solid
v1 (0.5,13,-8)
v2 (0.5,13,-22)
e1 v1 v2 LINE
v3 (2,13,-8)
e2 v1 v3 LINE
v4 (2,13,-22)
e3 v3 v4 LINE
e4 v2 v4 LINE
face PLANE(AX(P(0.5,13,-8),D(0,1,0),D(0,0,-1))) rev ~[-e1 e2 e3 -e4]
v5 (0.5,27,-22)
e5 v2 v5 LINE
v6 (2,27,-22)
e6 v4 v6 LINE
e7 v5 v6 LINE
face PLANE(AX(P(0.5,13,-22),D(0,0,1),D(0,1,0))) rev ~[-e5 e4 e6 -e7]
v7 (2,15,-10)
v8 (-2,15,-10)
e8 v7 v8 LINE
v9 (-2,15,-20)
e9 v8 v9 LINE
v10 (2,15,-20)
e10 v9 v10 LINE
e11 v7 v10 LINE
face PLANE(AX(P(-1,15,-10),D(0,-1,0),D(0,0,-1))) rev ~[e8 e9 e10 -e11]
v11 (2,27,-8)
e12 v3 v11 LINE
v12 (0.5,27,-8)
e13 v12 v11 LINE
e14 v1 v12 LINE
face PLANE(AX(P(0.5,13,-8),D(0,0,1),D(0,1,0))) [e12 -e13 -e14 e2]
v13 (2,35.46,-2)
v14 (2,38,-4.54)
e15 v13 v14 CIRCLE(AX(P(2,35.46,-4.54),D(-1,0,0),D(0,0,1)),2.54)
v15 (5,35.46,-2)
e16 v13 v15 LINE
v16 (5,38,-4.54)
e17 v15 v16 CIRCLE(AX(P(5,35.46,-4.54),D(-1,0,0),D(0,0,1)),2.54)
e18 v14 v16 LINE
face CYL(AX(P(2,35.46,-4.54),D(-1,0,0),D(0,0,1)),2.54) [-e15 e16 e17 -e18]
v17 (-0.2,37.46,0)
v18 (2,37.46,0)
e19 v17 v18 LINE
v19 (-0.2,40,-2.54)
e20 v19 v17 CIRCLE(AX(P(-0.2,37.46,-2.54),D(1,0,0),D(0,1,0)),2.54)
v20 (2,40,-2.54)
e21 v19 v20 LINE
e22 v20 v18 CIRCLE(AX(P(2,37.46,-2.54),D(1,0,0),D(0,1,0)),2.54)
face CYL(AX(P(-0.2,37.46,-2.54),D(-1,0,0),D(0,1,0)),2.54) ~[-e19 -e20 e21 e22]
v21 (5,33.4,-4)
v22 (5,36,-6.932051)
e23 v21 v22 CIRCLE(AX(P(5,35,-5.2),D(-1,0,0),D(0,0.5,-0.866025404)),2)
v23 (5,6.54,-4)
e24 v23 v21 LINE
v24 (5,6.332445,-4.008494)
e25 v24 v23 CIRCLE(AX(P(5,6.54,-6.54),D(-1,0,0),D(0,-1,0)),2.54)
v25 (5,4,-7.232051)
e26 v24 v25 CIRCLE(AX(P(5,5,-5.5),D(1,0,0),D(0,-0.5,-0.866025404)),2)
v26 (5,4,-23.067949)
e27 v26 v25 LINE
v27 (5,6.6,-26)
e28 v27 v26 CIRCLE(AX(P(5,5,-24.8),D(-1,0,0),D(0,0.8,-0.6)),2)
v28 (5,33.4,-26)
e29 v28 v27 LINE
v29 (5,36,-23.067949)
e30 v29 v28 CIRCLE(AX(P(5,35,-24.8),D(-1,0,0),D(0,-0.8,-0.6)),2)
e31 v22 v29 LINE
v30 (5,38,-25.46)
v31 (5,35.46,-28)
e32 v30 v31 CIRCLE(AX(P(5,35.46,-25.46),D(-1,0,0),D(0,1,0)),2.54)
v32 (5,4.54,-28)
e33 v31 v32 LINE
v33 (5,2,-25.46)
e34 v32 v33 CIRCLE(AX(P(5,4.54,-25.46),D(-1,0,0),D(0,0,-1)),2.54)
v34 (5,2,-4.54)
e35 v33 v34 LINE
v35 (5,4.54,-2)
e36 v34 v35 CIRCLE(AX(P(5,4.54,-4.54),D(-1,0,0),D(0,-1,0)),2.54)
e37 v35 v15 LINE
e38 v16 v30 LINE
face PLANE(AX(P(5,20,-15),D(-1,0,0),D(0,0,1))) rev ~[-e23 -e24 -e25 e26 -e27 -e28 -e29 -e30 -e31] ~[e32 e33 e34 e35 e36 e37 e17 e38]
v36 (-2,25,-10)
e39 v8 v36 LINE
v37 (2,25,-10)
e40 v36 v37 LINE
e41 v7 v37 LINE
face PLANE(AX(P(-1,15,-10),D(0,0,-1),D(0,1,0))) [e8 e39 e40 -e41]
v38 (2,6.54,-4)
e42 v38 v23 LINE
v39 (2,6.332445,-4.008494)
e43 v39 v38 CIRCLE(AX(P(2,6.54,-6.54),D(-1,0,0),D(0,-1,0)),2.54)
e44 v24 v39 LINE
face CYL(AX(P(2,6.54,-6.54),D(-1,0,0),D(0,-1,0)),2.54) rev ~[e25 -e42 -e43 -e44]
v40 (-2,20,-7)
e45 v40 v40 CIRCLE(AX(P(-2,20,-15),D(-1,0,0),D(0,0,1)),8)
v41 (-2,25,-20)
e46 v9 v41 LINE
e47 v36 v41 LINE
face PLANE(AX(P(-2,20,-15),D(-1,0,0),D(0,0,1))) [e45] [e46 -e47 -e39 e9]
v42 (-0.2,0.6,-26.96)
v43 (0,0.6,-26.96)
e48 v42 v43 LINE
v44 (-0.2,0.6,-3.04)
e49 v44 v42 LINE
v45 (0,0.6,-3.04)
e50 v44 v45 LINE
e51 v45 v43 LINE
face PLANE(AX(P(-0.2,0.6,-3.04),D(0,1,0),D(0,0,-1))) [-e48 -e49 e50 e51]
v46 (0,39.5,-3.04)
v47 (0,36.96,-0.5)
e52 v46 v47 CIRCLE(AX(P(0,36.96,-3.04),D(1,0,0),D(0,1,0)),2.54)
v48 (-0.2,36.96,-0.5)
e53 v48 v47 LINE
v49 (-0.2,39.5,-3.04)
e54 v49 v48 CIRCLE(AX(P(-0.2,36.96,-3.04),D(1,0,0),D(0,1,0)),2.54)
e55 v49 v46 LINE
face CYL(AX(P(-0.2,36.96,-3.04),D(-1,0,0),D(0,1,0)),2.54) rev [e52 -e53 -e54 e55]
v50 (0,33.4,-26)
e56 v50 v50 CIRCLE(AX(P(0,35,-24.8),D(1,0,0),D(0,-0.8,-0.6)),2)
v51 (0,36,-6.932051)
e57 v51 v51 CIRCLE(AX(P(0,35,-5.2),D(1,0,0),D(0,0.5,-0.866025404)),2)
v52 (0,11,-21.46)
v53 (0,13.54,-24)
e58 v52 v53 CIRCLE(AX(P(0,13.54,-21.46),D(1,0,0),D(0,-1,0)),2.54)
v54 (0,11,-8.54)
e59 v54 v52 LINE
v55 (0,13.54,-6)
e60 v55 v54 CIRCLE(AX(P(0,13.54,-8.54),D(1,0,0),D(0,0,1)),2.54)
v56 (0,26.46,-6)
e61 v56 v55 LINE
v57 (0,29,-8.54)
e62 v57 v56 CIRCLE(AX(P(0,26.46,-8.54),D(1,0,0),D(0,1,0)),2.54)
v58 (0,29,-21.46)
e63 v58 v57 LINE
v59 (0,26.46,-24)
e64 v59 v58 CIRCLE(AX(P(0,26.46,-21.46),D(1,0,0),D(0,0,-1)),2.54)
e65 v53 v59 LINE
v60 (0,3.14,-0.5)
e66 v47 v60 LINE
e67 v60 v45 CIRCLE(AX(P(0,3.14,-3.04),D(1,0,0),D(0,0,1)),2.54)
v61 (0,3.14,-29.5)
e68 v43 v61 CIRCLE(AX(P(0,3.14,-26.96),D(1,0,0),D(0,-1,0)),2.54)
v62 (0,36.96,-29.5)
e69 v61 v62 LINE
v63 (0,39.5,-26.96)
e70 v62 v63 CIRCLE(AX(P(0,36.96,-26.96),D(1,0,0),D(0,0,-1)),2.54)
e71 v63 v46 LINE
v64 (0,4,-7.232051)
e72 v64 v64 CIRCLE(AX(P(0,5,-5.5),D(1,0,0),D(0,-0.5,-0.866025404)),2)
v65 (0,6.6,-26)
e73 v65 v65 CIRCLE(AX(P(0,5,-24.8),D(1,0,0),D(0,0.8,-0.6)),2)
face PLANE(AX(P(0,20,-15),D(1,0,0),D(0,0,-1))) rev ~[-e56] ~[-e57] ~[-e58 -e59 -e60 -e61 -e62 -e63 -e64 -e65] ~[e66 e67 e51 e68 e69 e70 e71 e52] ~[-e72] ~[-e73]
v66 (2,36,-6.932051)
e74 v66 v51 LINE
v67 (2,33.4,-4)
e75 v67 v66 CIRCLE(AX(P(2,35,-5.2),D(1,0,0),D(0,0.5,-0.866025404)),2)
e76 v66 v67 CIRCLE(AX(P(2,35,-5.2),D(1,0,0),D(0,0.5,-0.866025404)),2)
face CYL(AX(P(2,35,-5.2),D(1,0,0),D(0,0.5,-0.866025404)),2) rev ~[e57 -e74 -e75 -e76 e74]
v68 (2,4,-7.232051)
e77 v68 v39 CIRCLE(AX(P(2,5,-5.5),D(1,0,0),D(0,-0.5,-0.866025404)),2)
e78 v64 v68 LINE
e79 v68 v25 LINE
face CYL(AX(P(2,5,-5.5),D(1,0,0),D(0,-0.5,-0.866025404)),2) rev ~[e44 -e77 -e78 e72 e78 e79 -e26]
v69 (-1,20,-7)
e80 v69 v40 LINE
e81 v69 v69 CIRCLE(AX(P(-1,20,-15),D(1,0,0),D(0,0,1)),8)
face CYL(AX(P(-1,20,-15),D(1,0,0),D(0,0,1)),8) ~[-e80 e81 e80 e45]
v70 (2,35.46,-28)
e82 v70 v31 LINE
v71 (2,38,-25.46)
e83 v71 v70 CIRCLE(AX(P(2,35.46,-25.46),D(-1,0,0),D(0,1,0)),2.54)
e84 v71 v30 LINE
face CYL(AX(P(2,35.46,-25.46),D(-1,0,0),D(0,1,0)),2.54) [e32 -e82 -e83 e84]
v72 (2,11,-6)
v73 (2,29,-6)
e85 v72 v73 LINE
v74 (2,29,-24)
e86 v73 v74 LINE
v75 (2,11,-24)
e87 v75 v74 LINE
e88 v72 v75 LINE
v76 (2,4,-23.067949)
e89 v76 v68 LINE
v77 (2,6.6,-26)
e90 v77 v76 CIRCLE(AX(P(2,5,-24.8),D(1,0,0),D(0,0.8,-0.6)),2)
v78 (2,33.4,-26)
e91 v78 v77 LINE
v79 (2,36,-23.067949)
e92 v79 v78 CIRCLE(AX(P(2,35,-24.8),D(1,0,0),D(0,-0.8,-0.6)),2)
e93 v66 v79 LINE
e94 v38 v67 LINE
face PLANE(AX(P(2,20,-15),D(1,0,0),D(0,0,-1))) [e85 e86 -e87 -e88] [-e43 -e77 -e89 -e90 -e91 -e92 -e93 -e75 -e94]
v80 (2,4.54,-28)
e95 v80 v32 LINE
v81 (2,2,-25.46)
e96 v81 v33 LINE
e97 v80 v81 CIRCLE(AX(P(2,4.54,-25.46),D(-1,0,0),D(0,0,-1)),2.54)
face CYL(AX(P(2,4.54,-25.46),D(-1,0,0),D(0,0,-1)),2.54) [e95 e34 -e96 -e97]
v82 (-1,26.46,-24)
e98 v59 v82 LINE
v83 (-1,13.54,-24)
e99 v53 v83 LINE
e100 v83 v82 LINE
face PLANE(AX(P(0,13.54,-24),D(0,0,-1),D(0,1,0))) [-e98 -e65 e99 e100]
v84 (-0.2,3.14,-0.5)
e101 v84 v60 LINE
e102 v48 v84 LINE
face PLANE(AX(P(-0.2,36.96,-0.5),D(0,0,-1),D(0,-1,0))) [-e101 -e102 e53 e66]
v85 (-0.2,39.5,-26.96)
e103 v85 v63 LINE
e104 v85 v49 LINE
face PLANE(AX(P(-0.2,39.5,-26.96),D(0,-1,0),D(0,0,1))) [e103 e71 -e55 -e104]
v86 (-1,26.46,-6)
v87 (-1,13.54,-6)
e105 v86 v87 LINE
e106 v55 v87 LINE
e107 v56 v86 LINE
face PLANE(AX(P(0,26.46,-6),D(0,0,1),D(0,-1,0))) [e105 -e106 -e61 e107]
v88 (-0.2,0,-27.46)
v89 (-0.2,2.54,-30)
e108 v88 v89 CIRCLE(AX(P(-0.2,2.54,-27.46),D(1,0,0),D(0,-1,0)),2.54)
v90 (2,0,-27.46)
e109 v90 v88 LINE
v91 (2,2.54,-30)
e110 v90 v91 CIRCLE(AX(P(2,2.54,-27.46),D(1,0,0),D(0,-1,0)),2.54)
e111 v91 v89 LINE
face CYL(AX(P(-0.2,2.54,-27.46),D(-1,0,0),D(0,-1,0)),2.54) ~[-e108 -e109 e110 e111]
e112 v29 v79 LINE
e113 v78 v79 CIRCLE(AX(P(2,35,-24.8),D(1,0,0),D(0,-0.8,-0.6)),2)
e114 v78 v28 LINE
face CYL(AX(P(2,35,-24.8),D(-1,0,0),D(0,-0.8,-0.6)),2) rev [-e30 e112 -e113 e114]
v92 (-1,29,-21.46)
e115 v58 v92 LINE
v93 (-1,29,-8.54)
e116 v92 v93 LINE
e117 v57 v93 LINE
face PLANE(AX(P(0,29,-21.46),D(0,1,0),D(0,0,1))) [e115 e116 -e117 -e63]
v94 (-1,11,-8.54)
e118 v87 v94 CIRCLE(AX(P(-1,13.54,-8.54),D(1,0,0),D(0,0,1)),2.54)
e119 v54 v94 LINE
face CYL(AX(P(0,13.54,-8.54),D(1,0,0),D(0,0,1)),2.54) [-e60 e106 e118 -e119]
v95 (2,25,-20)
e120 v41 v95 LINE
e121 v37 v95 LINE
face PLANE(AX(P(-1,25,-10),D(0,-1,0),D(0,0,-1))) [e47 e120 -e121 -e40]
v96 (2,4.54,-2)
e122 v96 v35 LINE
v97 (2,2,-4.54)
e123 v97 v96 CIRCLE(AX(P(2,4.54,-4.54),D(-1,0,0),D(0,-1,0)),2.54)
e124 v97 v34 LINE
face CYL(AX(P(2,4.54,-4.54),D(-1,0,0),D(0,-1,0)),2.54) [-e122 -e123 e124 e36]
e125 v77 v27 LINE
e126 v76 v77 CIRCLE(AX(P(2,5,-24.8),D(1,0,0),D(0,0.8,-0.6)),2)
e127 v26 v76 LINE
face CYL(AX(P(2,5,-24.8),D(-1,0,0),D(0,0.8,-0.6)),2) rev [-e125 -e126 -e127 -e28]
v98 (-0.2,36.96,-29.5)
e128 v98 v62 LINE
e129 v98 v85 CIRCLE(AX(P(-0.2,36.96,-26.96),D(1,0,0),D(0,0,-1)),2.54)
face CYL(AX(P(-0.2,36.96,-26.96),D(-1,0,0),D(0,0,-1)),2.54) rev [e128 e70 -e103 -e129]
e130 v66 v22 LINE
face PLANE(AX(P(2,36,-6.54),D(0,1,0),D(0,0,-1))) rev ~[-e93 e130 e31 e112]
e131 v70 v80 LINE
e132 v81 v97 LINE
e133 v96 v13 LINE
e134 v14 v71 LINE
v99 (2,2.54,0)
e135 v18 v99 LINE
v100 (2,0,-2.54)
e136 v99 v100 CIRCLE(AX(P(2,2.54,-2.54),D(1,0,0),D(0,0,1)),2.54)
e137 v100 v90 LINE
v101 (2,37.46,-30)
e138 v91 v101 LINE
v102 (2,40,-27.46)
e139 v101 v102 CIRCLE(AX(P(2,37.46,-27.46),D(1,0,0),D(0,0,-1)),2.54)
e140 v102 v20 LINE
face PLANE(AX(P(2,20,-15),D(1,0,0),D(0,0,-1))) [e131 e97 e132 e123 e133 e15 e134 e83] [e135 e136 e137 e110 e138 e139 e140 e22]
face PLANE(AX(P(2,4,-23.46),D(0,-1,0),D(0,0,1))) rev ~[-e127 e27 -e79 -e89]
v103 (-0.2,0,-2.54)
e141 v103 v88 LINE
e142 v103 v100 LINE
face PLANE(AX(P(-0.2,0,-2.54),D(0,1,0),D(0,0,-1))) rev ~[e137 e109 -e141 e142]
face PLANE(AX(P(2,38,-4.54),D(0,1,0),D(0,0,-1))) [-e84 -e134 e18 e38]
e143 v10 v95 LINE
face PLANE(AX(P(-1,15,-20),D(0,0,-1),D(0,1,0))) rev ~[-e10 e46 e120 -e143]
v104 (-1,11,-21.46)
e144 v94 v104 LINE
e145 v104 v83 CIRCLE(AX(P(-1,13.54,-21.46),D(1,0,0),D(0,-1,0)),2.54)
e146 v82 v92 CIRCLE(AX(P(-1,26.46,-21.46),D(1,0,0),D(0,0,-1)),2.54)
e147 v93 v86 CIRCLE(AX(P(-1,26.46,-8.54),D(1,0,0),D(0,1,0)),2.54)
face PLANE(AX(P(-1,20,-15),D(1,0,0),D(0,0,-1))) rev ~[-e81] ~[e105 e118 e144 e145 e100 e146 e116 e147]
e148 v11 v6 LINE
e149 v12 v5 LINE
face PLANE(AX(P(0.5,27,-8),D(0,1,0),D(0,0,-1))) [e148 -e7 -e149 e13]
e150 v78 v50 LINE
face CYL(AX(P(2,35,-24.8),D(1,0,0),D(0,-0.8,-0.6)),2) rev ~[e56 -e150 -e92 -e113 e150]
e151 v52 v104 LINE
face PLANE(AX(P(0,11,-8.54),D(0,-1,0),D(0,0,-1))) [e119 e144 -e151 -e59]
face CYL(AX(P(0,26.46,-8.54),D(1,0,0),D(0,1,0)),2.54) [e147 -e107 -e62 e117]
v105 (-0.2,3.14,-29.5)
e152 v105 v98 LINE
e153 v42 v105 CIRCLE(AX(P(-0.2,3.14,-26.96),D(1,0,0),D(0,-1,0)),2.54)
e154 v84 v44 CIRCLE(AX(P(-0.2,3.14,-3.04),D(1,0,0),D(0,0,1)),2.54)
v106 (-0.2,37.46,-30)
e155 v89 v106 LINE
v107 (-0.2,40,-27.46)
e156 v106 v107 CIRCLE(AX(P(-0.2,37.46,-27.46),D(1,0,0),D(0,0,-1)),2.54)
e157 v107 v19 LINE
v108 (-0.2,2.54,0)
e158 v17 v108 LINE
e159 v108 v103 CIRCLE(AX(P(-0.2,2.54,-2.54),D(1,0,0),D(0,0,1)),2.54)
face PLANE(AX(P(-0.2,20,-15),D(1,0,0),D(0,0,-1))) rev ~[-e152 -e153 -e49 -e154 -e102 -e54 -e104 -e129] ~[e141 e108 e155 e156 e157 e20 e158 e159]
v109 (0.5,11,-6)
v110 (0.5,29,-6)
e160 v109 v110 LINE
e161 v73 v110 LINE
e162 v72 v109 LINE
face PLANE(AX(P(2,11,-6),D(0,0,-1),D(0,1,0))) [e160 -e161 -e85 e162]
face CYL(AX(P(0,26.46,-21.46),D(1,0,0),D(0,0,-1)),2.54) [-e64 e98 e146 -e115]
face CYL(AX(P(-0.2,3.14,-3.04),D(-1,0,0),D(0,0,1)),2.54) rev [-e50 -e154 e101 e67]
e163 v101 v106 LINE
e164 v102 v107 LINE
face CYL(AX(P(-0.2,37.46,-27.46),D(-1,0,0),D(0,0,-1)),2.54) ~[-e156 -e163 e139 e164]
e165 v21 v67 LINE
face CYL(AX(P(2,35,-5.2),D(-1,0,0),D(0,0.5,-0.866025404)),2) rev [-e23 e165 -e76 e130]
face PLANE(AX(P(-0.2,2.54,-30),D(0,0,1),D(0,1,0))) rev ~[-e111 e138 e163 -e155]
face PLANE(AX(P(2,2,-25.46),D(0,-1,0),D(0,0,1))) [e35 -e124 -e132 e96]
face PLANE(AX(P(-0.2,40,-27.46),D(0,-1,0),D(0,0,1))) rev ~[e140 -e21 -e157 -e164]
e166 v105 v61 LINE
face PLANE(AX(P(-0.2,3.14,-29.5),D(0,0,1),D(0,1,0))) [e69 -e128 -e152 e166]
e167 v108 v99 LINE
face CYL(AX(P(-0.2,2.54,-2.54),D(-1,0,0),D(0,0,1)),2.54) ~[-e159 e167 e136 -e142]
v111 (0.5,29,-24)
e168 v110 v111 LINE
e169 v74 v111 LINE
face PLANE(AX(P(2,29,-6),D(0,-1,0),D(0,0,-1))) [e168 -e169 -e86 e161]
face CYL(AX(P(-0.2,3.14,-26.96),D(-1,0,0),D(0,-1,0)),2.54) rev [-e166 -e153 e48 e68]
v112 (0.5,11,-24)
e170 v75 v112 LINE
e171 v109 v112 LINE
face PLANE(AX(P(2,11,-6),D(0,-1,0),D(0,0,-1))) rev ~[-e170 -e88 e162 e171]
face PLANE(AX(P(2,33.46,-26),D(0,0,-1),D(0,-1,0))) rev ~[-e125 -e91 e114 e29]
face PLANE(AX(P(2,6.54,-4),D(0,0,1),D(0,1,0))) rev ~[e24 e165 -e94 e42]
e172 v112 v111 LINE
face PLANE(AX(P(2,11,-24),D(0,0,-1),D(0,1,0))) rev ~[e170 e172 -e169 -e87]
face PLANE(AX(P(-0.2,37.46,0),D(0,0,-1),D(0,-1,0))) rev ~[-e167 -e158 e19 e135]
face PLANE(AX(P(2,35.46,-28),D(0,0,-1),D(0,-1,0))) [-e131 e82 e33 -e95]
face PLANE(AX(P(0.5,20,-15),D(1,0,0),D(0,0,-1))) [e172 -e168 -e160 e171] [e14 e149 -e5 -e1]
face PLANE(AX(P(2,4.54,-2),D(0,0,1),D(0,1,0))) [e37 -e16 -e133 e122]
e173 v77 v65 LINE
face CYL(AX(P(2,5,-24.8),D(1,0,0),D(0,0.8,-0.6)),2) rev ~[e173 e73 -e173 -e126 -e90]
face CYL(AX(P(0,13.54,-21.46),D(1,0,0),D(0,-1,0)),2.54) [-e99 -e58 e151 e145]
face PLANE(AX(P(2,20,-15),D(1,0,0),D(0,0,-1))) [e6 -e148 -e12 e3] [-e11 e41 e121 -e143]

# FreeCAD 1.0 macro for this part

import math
import FreeCAD as App
import Part
import Sketcher

V = App.Vector


def add_polygon(sketch, points):
    """Adds a closed chain of lines whose ends are joined by coincident constraints."""
    first, n = sketch.GeometryCount, len(points)
    for a, b in zip(points, points[1:] + points[:1]):
        sketch.addGeometry(Part.LineSegment(App.Vector(*a, 0), App.Vector(*b, 0)), False)
    for i in range(n):
        sketch.addConstraint(Sketcher.Constraint("Coincident", first + i, 2, first + (i + 1) % n, 1))

doc = App.newDocument("Part")
body = doc.addObject("PartDesign::Body", "Body")

# Sketch on YZ plane
sketch1 = body.newObject("Sketcher::SketchObject", "Sketch")
sketch1.AttachmentSupport = (doc.getObject("YZ_Plane"), [""])
sketch1.MapMode = "FlatFace"
sketch1.addGeometry([
    Part.LineSegment(V(0, -2.5, 0), V(0, -27.5, 0)),  # 0
    Part.ArcOfCircle(Part.Circle(V(2.5, -27.5, 0), V(0, 0, 1), 2.5), math.radians(-180), math.radians(-90)),  # 1
    Part.LineSegment(V(2.5, -30, 0), V(37.5, -30, 0)),  # 2
    Part.ArcOfCircle(Part.Circle(V(37.5, -27.5, 0), V(0, 0, 1), 2.5), math.radians(-90), math.radians(0)),  # 3
    Part.LineSegment(V(40, -27.5, 0), V(40, -2.5, 0)),  # 4
    Part.ArcOfCircle(Part.Circle(V(37.5, -2.5, 0), V(0, 0, 1), 2.5), math.radians(0), math.radians(90)),  # 5
    Part.LineSegment(V(37.5, 0, 0), V(2.5, 0, 0)),  # 6
    Part.ArcOfCircle(Part.Circle(V(2.5, -2.5, 0), V(0, 0, 1), 2.5), math.radians(90), math.radians(180)),  # 7
], False)
sketch1.addConstraint([
    Sketcher.Constraint("Tangent", 0, 2, 1, 1),
    Sketcher.Constraint("Tangent", 1, 2, 2, 1),
    Sketcher.Constraint("Tangent", 2, 2, 3, 1),
    Sketcher.Constraint("Tangent", 3, 2, 4, 1),
    Sketcher.Constraint("Tangent", 4, 2, 5, 1),
    Sketcher.Constraint("Tangent", 5, 2, 6, 1),
    Sketcher.Constraint("Tangent", 6, 2, 7, 1),
    Sketcher.Constraint("Tangent", 7, 2, 0, 1),
    Sketcher.Constraint("Vertical", 0),
    Sketcher.Constraint("Horizontal", 2),
    Sketcher.Constraint("Vertical", 4),
    Sketcher.Constraint("Horizontal", 6),
    Sketcher.Constraint("Equal", 1, 3),
    Sketcher.Constraint("Equal", 3, 5),
    Sketcher.Constraint("Equal", 5, 7),
    Sketcher.Constraint("PointOnObject", 0, 2, -2),
    Sketcher.Constraint("PointOnObject", 5, 2, -1),
    Sketcher.Constraint("Radius", 1, 2.54),
    Sketcher.Constraint("DistanceY", 1, 2, -1, 1, 30.0),
    Sketcher.Constraint("DistanceX", -1, 1, 3, 2, 40.0),
])
pad1 = body.newObject("PartDesign::Pad", "Pad")
pad1.Profile = sketch1
pad1.Length = 2

# Sketch on YZ plane
sketch2 = body.newObject("Sketcher::SketchObject", "Sketch001")
sketch2.AttachmentSupport = (doc.getObject("YZ_Plane"), [""])
sketch2.MapMode = "FlatFace"
add_polygon(sketch2, [(23, -18), (17, -18), (17, -12), (23, -12)])  # lines 0-3
sketch2.addConstraint([
    Sketcher.Constraint("Horizontal", 0),
    Sketcher.Constraint("Vertical", 1),
    Sketcher.Constraint("Horizontal", 2),
    Sketcher.Constraint("Vertical", 3),
    Sketcher.Constraint("Equal", 2, 1),
    Sketcher.Constraint("DistanceX", 0, 2, 0, 1, 6.0),
    Sketcher.Constraint("DistanceX", -1, 1, 0, 2, 17.0),
    Sketcher.Constraint("DistanceY", 0, 2, -1, 1, 18.0),
])
pocket1 = body.newObject("PartDesign::Pocket", "Pocket")
pocket1.Profile = sketch2
pocket1.Length = 2
pocket1.Reversed = True

# Sketch on YZ plane
sketch3 = body.newObject("Sketcher::SketchObject", "Sketch002")
sketch3.AttachmentSupport = (doc.getObject("YZ_Plane"), [""])
sketch3.MapMode = "FlatFace"
sketch3.addGeometry(Part.Circle(V(20, -15, 0), V(0, 0, 1), 5), False)
sketch3.addConstraint([
    Sketcher.Constraint("Diameter", 0, 10.0),
    Sketcher.Constraint("DistanceX", -1, 1, 0, 3, 20.0),
    Sketcher.Constraint("DistanceY", 0, 3, -1, 1, 15.0),
])
pad2 = body.newObject("PartDesign::Pad", "Pad001")
pad2.Profile = sketch3
pad2.Length = 1.5
pad2.Reversed = True

# Sketch on YZ plane
sketch4 = body.newObject("Sketcher::SketchObject", "Sketch003")
sketch4.AttachmentSupport = (doc.getObject("YZ_Plane"), [""])
sketch4.MapMode = "FlatFace"
add_polygon(sketch4, [(26, -21), (14, -21), (14, -9), (26, -9)])  # lines 0-3
sketch4.addConstraint([
    Sketcher.Constraint("Horizontal", 0),
    Sketcher.Constraint("Vertical", 1),
    Sketcher.Constraint("Horizontal", 2),
    Sketcher.Constraint("Vertical", 3),
    Sketcher.Constraint("Equal", 2, 1),
    Sketcher.Constraint("DistanceX", 0, 2, 0, 1, 12.0),
    Sketcher.Constraint("DistanceX", -1, 1, 0, 2, 14.0),
    Sketcher.Constraint("DistanceY", 0, 2, -1, 1, 21.0),
])
pad3 = body.newObject("PartDesign::Pad", "Pad002")
pad3.Profile = sketch4
pad3.Length = 1
pad3.Reversed = True

# Sketch on YZ plane
sketch5 = body.newObject("Sketcher::SketchObject", "Sketch004")
sketch5.AttachmentSupport = (doc.getObject("YZ_Plane"), [""])
sketch5.MapMode = "FlatFace"
sketch5.AttachmentOffset = App.Placement(V(0, 0, 2), App.Rotation())
add_polygon(sketch5, [(23, -12), (17, -12), (17, -18), (23, -18)])  # lines 0-3
sketch5.addConstraint([
    Sketcher.Constraint("Horizontal", 0),
    Sketcher.Constraint("Vertical", 1),
    Sketcher.Constraint("Horizontal", 2),
    Sketcher.Constraint("Vertical", 3),
    Sketcher.Constraint("Equal", 2, 1),
    Sketcher.Constraint("DistanceX", 0, 2, 0, 1, 6.0),
    Sketcher.Constraint("DistanceX", -1, 1, 0, 2, 17.0),
    Sketcher.Constraint("DistanceY", 0, 2, -1, 1, 12.0),
])
pocket2 = body.newObject("PartDesign::Pocket", "Pocket001")
pocket2.Profile = sketch5
pocket2.Length = 10

# Sketch on YZ plane
sketch6 = body.newObject("Sketcher::SketchObject", "Sketch005")
sketch6.AttachmentSupport = (doc.getObject("YZ_Plane"), [""])
sketch6.MapMode = "FlatFace"
add_polygon(sketch6, [(28, -23), (12, -23), (12, -7), (28, -7)])  # lines 0-3
sketch6.addConstraint([
    Sketcher.Constraint("Horizontal", 0),
    Sketcher.Constraint("Vertical", 1),
    Sketcher.Constraint("Horizontal", 2),
    Sketcher.Constraint("Vertical", 3),
    Sketcher.Constraint("Equal", 2, 1),
    Sketcher.Constraint("DistanceX", 0, 2, 0, 1, 16.0),
    Sketcher.Constraint("DistanceX", -1, 1, 0, 2, 12.0),
    Sketcher.Constraint("DistanceY", 0, 2, -1, 1, 23.0),
])
pad4 = body.newObject("PartDesign::Pad", "Pad003")
pad4.Profile = sketch6
pad4.Length = 1
pad4.Reversed = True

# Sketch on YZ plane
sketch7 = body.newObject("Sketcher::SketchObject", "Sketch006")
sketch7.AttachmentSupport = (doc.getObject("YZ_Plane"), [""])
sketch7.MapMode = "FlatFace"
sketch7.AttachmentOffset = App.Placement(V(0, 0, -1), App.Rotation())
sketch7.addGeometry(Part.Circle(V(20, -15, 0), V(0, 0, 1), 6), False)
sketch7.addConstraint([
    Sketcher.Constraint("Diameter", 0, 12.0),
    Sketcher.Constraint("DistanceX", -1, 1, 0, 3, 20.0),
    Sketcher.Constraint("DistanceY", 0, 3, -1, 1, 15.0),
])
pad5 = body.newObject("PartDesign::Pad", "Pad004")
pad5.Profile = sketch7
pad5.Length = 1
pad5.Reversed = True

# Sketch on YZ plane
sketch8 = body.newObject("Sketcher::SketchObject", "Sketch007")
sketch8.AttachmentSupport = (doc.getObject("YZ_Plane"), [""])
sketch8.MapMode = "FlatFace"
add_polygon(sketch8, [(23, -12), (17, -12), (17, -18), (23, -18)])  # lines 0-3
sketch8.addConstraint([
    Sketcher.Constraint("Horizontal", 0),
    Sketcher.Constraint("Vertical", 1),
    Sketcher.Constraint("Horizontal", 2),
    Sketcher.Constraint("Vertical", 3),
    Sketcher.Constraint("Equal", 2, 1),
    Sketcher.Constraint("DistanceX", 0, 2, 0, 1, 6.0),
    Sketcher.Constraint("DistanceX", -1, 1, 0, 2, 17.0),
    Sketcher.Constraint("DistanceY", 0, 2, -1, 1, 12.0),
])
pocket3 = body.newObject("PartDesign::Pocket", "Pocket002")
pocket3.Profile = sketch8
pocket3.Length = 10

# Sketch on YZ plane
sketch9 = body.newObject("Sketcher::SketchObject", "Sketch008")
sketch9.AttachmentSupport = (doc.getObject("YZ_Plane"), [""])
sketch9.MapMode = "FlatFace"
sketch9.AttachmentOffset = App.Placement(V(0, 0, 2), App.Rotation())
sketch9.addGeometry([
    Part.LineSegment(V(38, -25.5, 0), V(38, -4.5, 0)),  # 0
    Part.ArcOfCircle(Part.Circle(V(35.5, -4.5, 0), V(0, 0, 1), 2.5), math.radians(0), math.radians(90)),  # 1
    Part.LineSegment(V(35.5, -2, 0), V(4.5, -2, 0)),  # 2
    Part.ArcOfCircle(Part.Circle(V(4.5, -4.5, 0), V(0, 0, 1), 2.5), math.radians(90), math.radians(180)),  # 3
    Part.LineSegment(V(2, -4.5, 0), V(2, -25.5, 0)),  # 4
    Part.ArcOfCircle(Part.Circle(V(4.5, -25.5, 0), V(0, 0, 1), 2.5), math.radians(-180), math.radians(-90)),  # 5
    Part.LineSegment(V(4.5, -28, 0), V(35.5, -28, 0)),  # 6
    Part.ArcOfCircle(Part.Circle(V(35.5, -25.5, 0), V(0, 0, 1), 2.5), math.radians(-90), math.radians(0)),  # 7
    Part.LineSegment(V(36, -6.5, 0), V(36, -23.5, 0)),  # 8
    Part.ArcOfCircle(Part.Circle(V(33.5, -23.5, 0), V(0, 0, 1), 2.5), math.radians(-90), math.radians(0)),  # 9
    Part.LineSegment(V(33.5, -26, 0), V(6.5, -26, 0)),  # 10
    Part.ArcOfCircle(Part.Circle(V(6.5, -23.5, 0), V(0, 0, 1), 2.5), math.radians(-180), math.radians(-90)),  # 11
    Part.LineSegment(V(4, -23.5, 0), V(4, -6.5, 0)),  # 12
    Part.ArcOfCircle(Part.Circle(V(6.5, -6.5, 0), V(0, 0, 1), 2.5), math.radians(90), math.radians(180)),  # 13
    Part.LineSegment(V(6.5, -4, 0), V(33.5, -4, 0)),  # 14
    Part.ArcOfCircle(Part.Circle(V(33.5, -6.5, 0), V(0, 0, 1), 2.5), math.radians(0), math.radians(90)),  # 15
], False)
sketch9.addConstraint([
    Sketcher.Constraint("Tangent", 0, 2, 1, 1),
    Sketcher.Constraint("Tangent", 1, 2, 2, 1),
    Sketcher.Constraint("Tangent", 2, 2, 3, 1),
    Sketcher.Constraint("Tangent", 3, 2, 4, 1),
    Sketcher.Constraint("Tangent", 4, 2, 5, 1),
    Sketcher.Constraint("Tangent", 5, 2, 6, 1),
    Sketcher.Constraint("Tangent", 6, 2, 7, 1),
    Sketcher.Constraint("Tangent", 7, 2, 0, 1),
    Sketcher.Constraint("Tangent", 8, 2, 9, 2),
    Sketcher.Constraint("Tangent", 9, 1, 10, 1),
    Sketcher.Constraint("Tangent", 10, 2, 11, 2),
    Sketcher.Constraint("Tangent", 11, 1, 12, 1),
    Sketcher.Constraint("Tangent", 12, 2, 13, 2),
    Sketcher.Constraint("Tangent", 13, 1, 14, 1),
    Sketcher.Constraint("Tangent", 14, 2, 15, 2),
    Sketcher.Constraint("Tangent", 15, 1, 8, 1),
    Sketcher.Constraint("Vertical", 0),
    Sketcher.Constraint("Horizontal", 2),
    Sketcher.Constraint("Vertical", 4),
    Sketcher.Constraint("Horizontal", 6),
    Sketcher.Constraint("Vertical", 8),
    Sketcher.Constraint("Horizontal", 10),
    Sketcher.Constraint("Vertical", 12),
    Sketcher.Constraint("Horizontal", 14),
    Sketcher.Constraint("Equal", 1, 3),
    Sketcher.Constraint("Equal", 3, 5),
    Sketcher.Constraint("Equal", 5, 7),
    Sketcher.Constraint("Equal", 7, 9),
    Sketcher.Constraint("Equal", 9, 11),
    Sketcher.Constraint("Equal", 11, 13),
    Sketcher.Constraint("Equal", 13, 15),
    Sketcher.Constraint("Radius", 1, 2.54),
    Sketcher.Constraint("DistanceX", -1, 1, 0, 2, 38.0),
    Sketcher.Constraint("DistanceY", 1, 2, -1, 1, 2.0),
    Sketcher.Constraint("DistanceX", -1, 1, 3, 2, 2.0),
    Sketcher.Constraint("DistanceY", 5, 2, -1, 1, 28.0),
    Sketcher.Constraint("DistanceX", -1, 1, 8, 2, 36.0),
    Sketcher.Constraint("DistanceY", 9, 1, -1, 1, 26.0),
    Sketcher.Constraint("DistanceX", -1, 1, 11, 1, 4.0),
    Sketcher.Constraint("DistanceY", 13, 1, -1, 1, 4.0),
])
pad6 = body.newObject("PartDesign::Pad", "Pad005")
pad6.Profile = sketch9
pad6.Length = 3

# Sketch on YZ plane
sketch10 = body.newObject("Sketcher::SketchObject", "Sketch009")
sketch10.AttachmentSupport = (doc.getObject("YZ_Plane"), [""])
sketch10.MapMode = "FlatFace"
sketch10.AttachmentOffset = App.Placement(V(0, 0, -1), App.Rotation())
sketch10.addGeometry([
    Part.LineSegment(V(28, -20.5, 0), V(28, -23, 0)),  # 0
    Part.LineSegment(V(28, -23, 0), V(25.5, -23, 0)),  # 1
    Part.ArcOfCircle(Part.Circle(V(25.5, -20.5, 0), V(0, 0, 1), 2.5), math.radians(-90), math.radians(0)),  # 2
    Part.LineSegment(V(25.5, -7, 0), V(28, -7, 0)),  # 3
    Part.LineSegment(V(28, -7, 0), V(28, -9.5, 0)),  # 4
    Part.ArcOfCircle(Part.Circle(V(25.5, -9.5, 0), V(0, 0, 1), 2.5), math.radians(0), math.radians(90)),  # 5
    Part.LineSegment(V(12, -9.5, 0), V(12, -7, 0)),  # 6
    Part.LineSegment(V(12, -7, 0), V(14.5, -7, 0)),  # 7
    Part.ArcOfCircle(Part.Circle(V(14.5, -9.5, 0), V(0, 0, 1), 2.5), math.radians(90), math.radians(180)),  # 8
    Part.LineSegment(V(14.5, -23, 0), V(12, -23, 0)),  # 9
    Part.LineSegment(V(12, -23, 0), V(12, -20.5, 0)),  # 10
    Part.ArcOfCircle(Part.Circle(V(14.5, -20.5, 0), V(0, 0, 1), 2.5), math.radians(-180), math.radians(-90)),  # 11
], False)
sketch10.addConstraint([
    Sketcher.Constraint("Coincident", 0, 2, 1, 1),
    Sketcher.Constraint("Tangent", 1, 2, 2, 1),
    Sketcher.Constraint("Tangent", 2, 2, 0, 1),
    Sketcher.Constraint("Coincident", 3, 2, 4, 1),
    Sketcher.Constraint("Tangent", 4, 2, 5, 1),
    Sketcher.Constraint("Tangent", 5, 2, 3, 1),
    Sketcher.Constraint("Coincident", 6, 2, 7, 1),
    Sketcher.Constraint("Tangent", 7, 2, 8, 1),
    Sketcher.Constraint("Tangent", 8, 2, 6, 1),
    Sketcher.Constraint("Coincident", 9, 2, 10, 1),
    Sketcher.Constraint("Tangent", 10, 2, 11, 1),
    Sketcher.Constraint("Tangent", 11, 2, 9, 1),
    Sketcher.Constraint("Vertical", 0),
    Sketcher.Constraint("Horizontal", 1),
    Sketcher.Constraint("Horizontal", 3),
    Sketcher.Constraint("Vertical", 4),
    Sketcher.Constraint("Vertical", 6),
    Sketcher.Constraint("Horizontal", 7),
    Sketcher.Constraint("Horizontal", 9),
    Sketcher.Constraint("Vertical", 10),
    Sketcher.Constraint("Equal", 2, 5),
    Sketcher.Constraint("Equal", 5, 8),
    Sketcher.Constraint("Equal", 8, 11),
    Sketcher.Constraint("Horizontal", 5, 3, 8, 3),
    Sketcher.Constraint("Horizontal", 2, 3, 11, 3),
    Sketcher.Constraint("Vertical", 2, 3, 5, 3),
    Sketcher.Constraint("Vertical", 8, 3, 11, 3),
    Sketcher.Constraint("Radius", 2, 2.54),
    Sketcher.Constraint("DistanceX", -1, 1, 0, 2, 28.0),
    Sketcher.Constraint("DistanceY", 0, 2, -1, 1, 23.0),
    Sketcher.Constraint("DistanceY", 3, 2, -1, 1, 7.0),
    Sketcher.Constraint("DistanceX", -1, 1, 6, 2, 12.0),
])
pocket4 = body.newObject("PartDesign::Pocket", "Pocket003")
pocket4.Profile = sketch10
pocket4.Length = 1
pocket4.Reversed = True

# Sketch on YZ plane
sketch11 = body.newObject("Sketcher::SketchObject", "Sketch010")
sketch11.AttachmentSupport = (doc.getObject("YZ_Plane"), [""])
sketch11.MapMode = "FlatFace"
sketch11.AttachmentOffset = App.Placement(V(0, 0, 2), App.Rotation())
add_polygon(sketch11, [(27, -8), (13, -8), (13, -22), (27, -22)])  # lines 0-3
add_polygon(sketch11, [(15, -20), (15, -10), (25, -10), (25, -20)])  # lines 4-7
sketch11.addConstraint([
    Sketcher.Constraint("Horizontal", 0),
    Sketcher.Constraint("Vertical", 1),
    Sketcher.Constraint("Horizontal", 2),
    Sketcher.Constraint("Vertical", 3),
    Sketcher.Constraint("Vertical", 4),
    Sketcher.Constraint("Horizontal", 5),
    Sketcher.Constraint("Vertical", 6),
    Sketcher.Constraint("Horizontal", 7),
    Sketcher.Constraint("Equal", 2, 1),
    Sketcher.Constraint("Equal", 7, 4),
    Sketcher.Constraint("DistanceX", 0, 2, 0, 1, 14.0),
    Sketcher.Constraint("DistanceX", 5, 1, 5, 2, 10.0),
    Sketcher.Constraint("DistanceX", -1, 1, 0, 2, 13.0),
    Sketcher.Constraint("DistanceY", 0, 2, -1, 1, 8.0),
    Sketcher.Constraint("DistanceX", -1, 1, 4, 2, 15.0),
    Sketcher.Constraint("DistanceY", 4, 2, -1, 1, 10.0),
])
pocket5 = body.newObject("PartDesign::Pocket", "Pocket004")
pocket5.Profile = sketch11
pocket5.Length = 1.5

# Sketch on YZ plane
sketch12 = body.newObject("Sketcher::SketchObject", "Sketch011")
sketch12.AttachmentSupport = (doc.getObject("YZ_Plane"), [""])
sketch12.MapMode = "FlatFace"
sketch12.AttachmentOffset = App.Placement(V(0, 0, -2), App.Rotation())
sketch12.addGeometry([
    Part.LineSegment(V(25, -12.5, 0), V(25, -17.5, 0)),  # 0
    Part.ArcOfCircle(Part.Circle(V(22.5, -17.5, 0), V(0, 0, 1), 2.5), math.radians(-90), math.radians(0)),  # 1
    Part.LineSegment(V(22.5, -20, 0), V(17.5, -20, 0)),  # 2
    Part.ArcOfCircle(Part.Circle(V(17.5, -17.5, 0), V(0, 0, 1), 2.5), math.radians(-180), math.radians(-90)),  # 3
    Part.LineSegment(V(15, -17.5, 0), V(15, -12.5, 0)),  # 4
    Part.ArcOfCircle(Part.Circle(V(17.5, -12.5, 0), V(0, 0, 1), 2.5), math.radians(90), math.radians(180)),  # 5
    Part.LineSegment(V(17.5, -10, 0), V(22.5, -10, 0)),  # 6
    Part.ArcOfCircle(Part.Circle(V(22.5, -12.5, 0), V(0, 0, 1), 2.5), math.radians(0), math.radians(90)),  # 7
], False)
sketch12.addConstraint([
    Sketcher.Constraint("Tangent", 0, 2, 1, 2),
    Sketcher.Constraint("Tangent", 1, 1, 2, 1),
    Sketcher.Constraint("Tangent", 2, 2, 3, 2),
    Sketcher.Constraint("Tangent", 3, 1, 4, 1),
    Sketcher.Constraint("Tangent", 4, 2, 5, 2),
    Sketcher.Constraint("Tangent", 5, 1, 6, 1),
    Sketcher.Constraint("Tangent", 6, 2, 7, 2),
    Sketcher.Constraint("Tangent", 7, 1, 0, 1),
    Sketcher.Constraint("Vertical", 0),
    Sketcher.Constraint("Horizontal", 2),
    Sketcher.Constraint("Vertical", 4),
    Sketcher.Constraint("Horizontal", 6),
    Sketcher.Constraint("Equal", 1, 3),
    Sketcher.Constraint("Equal", 3, 5),
    Sketcher.Constraint("Equal", 5, 7),
    Sketcher.Constraint("Equal", 6, 0),
    Sketcher.Constraint("Radius", 1, 2.54),
    Sketcher.Constraint("DistanceX", -1, 1, 0, 2, 25.0),
    Sketcher.Constraint("DistanceY", 1, 1, -1, 1, 20.0),
    Sketcher.Constraint("DistanceX", -1, 1, 3, 1, 15.0),
])
pad7 = body.newObject("PartDesign::Pad", "Pad006")
pad7.Profile = sketch12
pad7.Length = 3

# Sketch on YZ plane
sketch13 = body.newObject("Sketcher::SketchObject", "Sketch012")
sketch13.AttachmentSupport = (doc.getObject("YZ_Plane"), [""])
sketch13.MapMode = "FlatFace"
sketch13.AttachmentOffset = App.Placement(V(0, 0, -2), App.Rotation())
sketch13.addGeometry(Part.Circle(V(20, -15, 0), V(0, 0, 1), 7), False)
sketch13.addConstraint([
    Sketcher.Constraint("Diameter", 0, 14.0),
    Sketcher.Constraint("DistanceX", -1, 1, 0, 3, 20.0),
    Sketcher.Constraint("DistanceY", 0, 3, -1, 1, 15.0),
])
pad8 = body.newObject("PartDesign::Pad", "Pad007")
pad8.Profile = sketch13
pad8.Length = 1

# Sketch on YZ plane
sketch14 = body.newObject("Sketcher::SketchObject", "Sketch013")
sketch14.AttachmentSupport = (doc.getObject("YZ_Plane"), [""])
sketch14.MapMode = "FlatFace"
sketch14.AttachmentOffset = App.Placement(V(0, 0, 1), App.Rotation())
add_polygon(sketch14, [(23, -12), (17, -12), (17, -18), (23, -18)])  # lines 0-3
sketch14.addConstraint([
    Sketcher.Constraint("Horizontal", 0),
    Sketcher.Constraint("Vertical", 1),
    Sketcher.Constraint("Horizontal", 2),
    Sketcher.Constraint("Vertical", 3),
    Sketcher.Constraint("Equal", 2, 1),
    Sketcher.Constraint("DistanceX", 0, 2, 0, 1, 6.0),
    Sketcher.Constraint("DistanceX", -1, 1, 0, 2, 17.0),
    Sketcher.Constraint("DistanceY", 0, 2, -1, 1, 12.0),
])
pocket6 = body.newObject("PartDesign::Pocket", "Pocket005")
pocket6.Profile = sketch14
pocket6.Length = 4

# Sketch on YZ plane
sketch15 = body.newObject("Sketcher::SketchObject", "Sketch014")
sketch15.AttachmentSupport = (doc.getObject("YZ_Plane"), [""])
sketch15.MapMode = "FlatFace"
sketch15.AttachmentOffset = App.Placement(V(0, 0, -2), App.Rotation())
add_polygon(sketch15, [(24, -19), (16, -19), (16, -11), (24, -11)])  # lines 0-3
sketch15.addConstraint([
    Sketcher.Constraint("Horizontal", 0),
    Sketcher.Constraint("Vertical", 1),
    Sketcher.Constraint("Horizontal", 2),
    Sketcher.Constraint("Vertical", 3),
    Sketcher.Constraint("Equal", 2, 1),
    Sketcher.Constraint("DistanceX", 0, 2, 0, 1, 8.0),
    Sketcher.Constraint("DistanceX", -1, 1, 0, 2, 16.0),
    Sketcher.Constraint("DistanceY", 0, 2, -1, 1, 19.0),
])
pocket7 = body.newObject("PartDesign::Pocket", "Pocket006")
pocket7.Profile = sketch15
pocket7.Length = 10
pocket7.Reversed = True

# Sketch on YZ plane
sketch16 = body.newObject("Sketcher::SketchObject", "Sketch015")
sketch16.AttachmentSupport = (doc.getObject("YZ_Plane"), [""])
sketch16.MapMode = "FlatFace"
sketch16.AttachmentOffset = App.Placement(V(0, 0, 0.5), App.Rotation())
add_polygon(sketch16, [(26, -9), (14, -9), (14, -21), (26, -21)])  # lines 0-3
add_polygon(sketch16, [(16, -19), (16, -11), (24, -11), (24, -19)])  # lines 4-7
sketch16.addConstraint([
    Sketcher.Constraint("Horizontal", 0),
    Sketcher.Constraint("Vertical", 1),
    Sketcher.Constraint("Horizontal", 2),
    Sketcher.Constraint("Vertical", 3),
    Sketcher.Constraint("Vertical", 4),
    Sketcher.Constraint("Horizontal", 5),
    Sketcher.Constraint("Vertical", 6),
    Sketcher.Constraint("Horizontal", 7),
    Sketcher.Constraint("Equal", 2, 1),
    Sketcher.Constraint("Equal", 7, 4),
    Sketcher.Constraint("DistanceX", 0, 2, 0, 1, 12.0),
    Sketcher.Constraint("DistanceX", 5, 1, 5, 2, 8.0),
    Sketcher.Constraint("DistanceX", -1, 1, 0, 2, 14.0),
    Sketcher.Constraint("DistanceY", 0, 2, -1, 1, 9.0),
    Sketcher.Constraint("DistanceX", -1, 1, 4, 2, 16.0),
    Sketcher.Constraint("DistanceY", 4, 2, -1, 1, 11.0),
])
pad9 = body.newObject("PartDesign::Pad", "Pad008")
pad9.Profile = sketch16
pad9.Length = 1.5

# Sketch on YZ plane
sketch17 = body.newObject("Sketcher::SketchObject", "Sketch016")
sketch17.AttachmentSupport = (doc.getObject("YZ_Plane"), [""])
sketch17.MapMode = "FlatFace"
sketch17.AttachmentOffset = App.Placement(V(0, 0, 2), App.Rotation())
add_polygon(sketch17, [(28, -7), (12, -7), (12, -23), (28, -23)])  # lines 0-3
add_polygon(sketch17, [(14, -21), (14, -9), (26, -9), (26, -21)])  # lines 4-7
sketch17.addConstraint([
    Sketcher.Constraint("Horizontal", 0),
    Sketcher.Constraint("Vertical", 1),
    Sketcher.Constraint("Horizontal", 2),
    Sketcher.Constraint("Vertical", 3),
    Sketcher.Constraint("Vertical", 4),
    Sketcher.Constraint("Horizontal", 5),
    Sketcher.Constraint("Vertical", 6),
    Sketcher.Constraint("Horizontal", 7),
    Sketcher.Constraint("Equal", 2, 1),
    Sketcher.Constraint("Equal", 7, 4),
    Sketcher.Constraint("DistanceX", 0, 2, 0, 1, 16.0),
    Sketcher.Constraint("DistanceX", 5, 1, 5, 2, 12.0),
    Sketcher.Constraint("DistanceX", -1, 1, 0, 2, 12.0),
    Sketcher.Constraint("DistanceY", 0, 2, -1, 1, 7.0),
    Sketcher.Constraint("DistanceX", -1, 1, 4, 2, 14.0),
    Sketcher.Constraint("DistanceY", 4, 2, -1, 1, 9.0),
])
pocket8 = body.newObject("PartDesign::Pocket", "Pocket007")
pocket8.Profile = sketch17
pocket8.Length = 1.5

# Sketch on YZ plane
sketch18 = body.newObject("Sketcher::SketchObject", "Sketch017")
sketch18.AttachmentSupport = (doc.getObject("YZ_Plane"), [""])
sketch18.MapMode = "FlatFace"
sketch18.AttachmentOffset = App.Placement(V(0, 0, 2), App.Rotation())
add_polygon(sketch18, [(25, -10), (15, -10), (15, -20), (25, -20)])  # lines 0-3
add_polygon(sketch18, [(16, -19), (16, -11), (24, -11), (24, -19)])  # lines 4-7
sketch18.addConstraint([
    Sketcher.Constraint("Horizontal", 0),
    Sketcher.Constraint("Vertical", 1),
    Sketcher.Constraint("Horizontal", 2),
    Sketcher.Constraint("Vertical", 3),
    Sketcher.Constraint("Vertical", 4),
    Sketcher.Constraint("Horizontal", 5),
    Sketcher.Constraint("Vertical", 6),
    Sketcher.Constraint("Horizontal", 7),
    Sketcher.Constraint("Equal", 2, 1),
    Sketcher.Constraint("Equal", 7, 4),
    Sketcher.Constraint("DistanceX", 0, 2, 0, 1, 10.0),
    Sketcher.Constraint("DistanceX", 5, 1, 5, 2, 8.0),
    Sketcher.Constraint("DistanceX", -1, 1, 0, 2, 15.0),
    Sketcher.Constraint("DistanceY", 0, 2, -1, 1, 10.0),
    Sketcher.Constraint("DistanceX", -1, 1, 4, 2, 16.0),
    Sketcher.Constraint("DistanceY", 4, 2, -1, 1, 11.0),
])
pocket9 = body.newObject("PartDesign::Pocket", "Pocket008")
pocket9.Profile = sketch18
pocket9.Length = 10

# Sketch on YZ plane
sketch19 = body.newObject("Sketcher::SketchObject", "Sketch018")
sketch19.AttachmentSupport = (doc.getObject("YZ_Plane"), [""])
sketch19.MapMode = "FlatFace"
sketch19.AttachmentOffset = App.Placement(V(0, 0, -1), App.Rotation())
sketch19.addGeometry(Part.Circle(V(20, -15, 0), V(0, 0, 1), 8), False)
sketch19.addConstraint([
    Sketcher.Constraint("Diameter", 0, 16.0),
    Sketcher.Constraint("DistanceX", -1, 1, 0, 3, 20.0),
    Sketcher.Constraint("DistanceY", 0, 3, -1, 1, 15.0),
])
pad10 = body.newObject("PartDesign::Pad", "Pad009")
pad10.Profile = sketch19
pad10.Length = 1
pad10.Reversed = True

# Sketch on YZ plane
sketch20 = body.newObject("Sketcher::SketchObject", "Sketch019")
sketch20.AttachmentSupport = (doc.getObject("YZ_Plane"), [""])
sketch20.MapMode = "FlatFace"
sketch20.AttachmentOffset = App.Placement(V(0, 0, -1), App.Rotation())
add_polygon(sketch20, [(25, -10), (15, -10), (15, -20), (25, -20)])  # lines 0-3
sketch20.addConstraint([
    Sketcher.Constraint("Horizontal", 0),
    Sketcher.Constraint("Vertical", 1),
    Sketcher.Constraint("Horizontal", 2),
    Sketcher.Constraint("Vertical", 3),
    Sketcher.Constraint("Equal", 2, 1),
    Sketcher.Constraint("DistanceX", 0, 2, 0, 1, 10.0),
    Sketcher.Constraint("DistanceX", -1, 1, 0, 2, 15.0),
    Sketcher.Constraint("DistanceY", 0, 2, -1, 1, 10.0),
])
pocket10 = body.newObject("PartDesign::Pocket", "Pocket009")
pocket10.Profile = sketch20
pocket10.Length = 1

# Sketch on YZ plane
sketch21 = body.newObject("Sketcher::SketchObject", "Sketch020")
sketch21.AttachmentSupport = (doc.getObject("YZ_Plane"), [""])
sketch21.MapMode = "FlatFace"
sketch21.addGeometry([
    Part.LineSegment(V(29, -8.5, 0), V(29, -21.5, 0)),  # 0
    Part.ArcOfCircle(Part.Circle(V(26.5, -21.5, 0), V(0, 0, 1), 2.5), math.radians(-90), math.radians(0)),  # 1
    Part.LineSegment(V(26.5, -24, 0), V(13.5, -24, 0)),  # 2
    Part.ArcOfCircle(Part.Circle(V(13.5, -21.5, 0), V(0, 0, 1), 2.5), math.radians(-180), math.radians(-90)),  # 3
    Part.LineSegment(V(11, -21.5, 0), V(11, -8.5, 0)),  # 4
    Part.ArcOfCircle(Part.Circle(V(13.5, -8.5, 0), V(0, 0, 1), 2.5), math.radians(90), math.radians(180)),  # 5
    Part.LineSegment(V(13.5, -6, 0), V(26.5, -6, 0)),  # 6
    Part.ArcOfCircle(Part.Circle(V(26.5, -8.5, 0), V(0, 0, 1), 2.5), math.radians(0), math.radians(90)),  # 7
], False)
sketch21.addConstraint([
    Sketcher.Constraint("Tangent", 0, 2, 1, 2),
    Sketcher.Constraint("Tangent", 1, 1, 2, 1),
    Sketcher.Constraint("Tangent", 2, 2, 3, 2),
    Sketcher.Constraint("Tangent", 3, 1, 4, 1),
    Sketcher.Constraint("Tangent", 4, 2, 5, 2),
    Sketcher.Constraint("Tangent", 5, 1, 6, 1),
    Sketcher.Constraint("Tangent", 6, 2, 7, 2),
    Sketcher.Constraint("Tangent", 7, 1, 0, 1),
    Sketcher.Constraint("Vertical", 0),
    Sketcher.Constraint("Horizontal", 2),
    Sketcher.Constraint("Vertical", 4),
    Sketcher.Constraint("Horizontal", 6),
    Sketcher.Constraint("Equal", 1, 3),
    Sketcher.Constraint("Equal", 3, 5),
    Sketcher.Constraint("Equal", 5, 7),
    Sketcher.Constraint("Equal", 6, 0),
    Sketcher.Constraint("Radius", 1, 2.54),
    Sketcher.Constraint("DistanceX", -1, 1, 0, 2, 29.0),
    Sketcher.Constraint("DistanceY", 1, 1, -1, 1, 24.0),
    Sketcher.Constraint("DistanceX", -1, 1, 3, 1, 11.0),
])
pad11 = body.newObject("PartDesign::Pad", "Pad010")
pad11.Profile = sketch21
pad11.Length = 1
pad11.Reversed = True

# Sketch on YZ plane
sketch22 = body.newObject("Sketcher::SketchObject", "Sketch021")
sketch22.AttachmentSupport = (doc.getObject("YZ_Plane"), [""])
sketch22.MapMode = "FlatFace"
add_polygon(sketch22, [(25, -10), (15, -10), (15, -20), (25, -20)])  # lines 0-3
sketch22.addConstraint([
    Sketcher.Constraint("Horizontal", 0),
    Sketcher.Constraint("Vertical", 1),
    Sketcher.Constraint("Horizontal", 2),
    Sketcher.Constraint("Vertical", 3),
    Sketcher.Constraint("Equal", 2, 1),
    Sketcher.Constraint("DistanceX", 0, 2, 0, 1, 10.0),
    Sketcher.Constraint("DistanceX", -1, 1, 0, 2, 15.0),
    Sketcher.Constraint("DistanceY", 0, 2, -1, 1, 10.0),
])
pocket11 = body.newObject("PartDesign::Pocket", "Pocket010")
pocket11.Profile = sketch22
pocket11.Length = 1

# Sketch on YZ plane
sketch23 = body.newObject("Sketcher::SketchObject", "Sketch022")
sketch23.AttachmentSupport = (doc.getObject("YZ_Plane"), [""])
sketch23.MapMode = "FlatFace"
sketch23.AttachmentOffset = App.Placement(V(0, 0, 0.5), App.Rotation())
add_polygon(sketch23, [(27, -8), (13, -8), (13, -22), (27, -22)])  # lines 0-3
add_polygon(sketch23, [(14, -21), (14, -9), (26, -9), (26, -21)])  # lines 4-7
sketch23.addConstraint([
    Sketcher.Constraint("Horizontal", 0),
    Sketcher.Constraint("Vertical", 1),
    Sketcher.Constraint("Horizontal", 2),
    Sketcher.Constraint("Vertical", 3),
    Sketcher.Constraint("Vertical", 4),
    Sketcher.Constraint("Horizontal", 5),
    Sketcher.Constraint("Vertical", 6),
    Sketcher.Constraint("Horizontal", 7),
    Sketcher.Constraint("Equal", 2, 1),
    Sketcher.Constraint("Equal", 7, 4),
    Sketcher.Constraint("DistanceX", 0, 2, 0, 1, 14.0),
    Sketcher.Constraint("DistanceX", 5, 1, 5, 2, 12.0),
    Sketcher.Constraint("DistanceX", -1, 1, 0, 2, 13.0),
    Sketcher.Constraint("DistanceY", 0, 2, -1, 1, 8.0),
    Sketcher.Constraint("DistanceX", -1, 1, 4, 2, 14.0),
    Sketcher.Constraint("DistanceY", 4, 2, -1, 1, 9.0),
])
pad12 = body.newObject("PartDesign::Pad", "Pad011")
pad12.Profile = sketch23
pad12.Length = 1.5

# Sketch on YZ plane
sketch24 = body.newObject("Sketcher::SketchObject", "Sketch023")
sketch24.AttachmentSupport = (doc.getObject("YZ_Plane"), [""])
sketch24.MapMode = "FlatFace"
sketch24.AttachmentOffset = App.Placement(V(0, 0, 2), App.Rotation())
add_polygon(sketch24, [(29, -6), (11, -6), (11, -24), (29, -24)])  # lines 0-3
add_polygon(sketch24, [(12, -23), (12, -7), (28, -7), (28, -23)])  # lines 4-7
sketch24.addConstraint([
    Sketcher.Constraint("Horizontal", 0),
    Sketcher.Constraint("Vertical", 1),
    Sketcher.Constraint("Horizontal", 2),
    Sketcher.Constraint("Vertical", 3),
    Sketcher.Constraint("Vertical", 4),
    Sketcher.Constraint("Horizontal", 5),
    Sketcher.Constraint("Vertical", 6),
    Sketcher.Constraint("Horizontal", 7),
    Sketcher.Constraint("Equal", 2, 1),
    Sketcher.Constraint("Equal", 7, 4),
    Sketcher.Constraint("DistanceX", 0, 2, 0, 1, 18.0),
    Sketcher.Constraint("DistanceX", 5, 1, 5, 2, 16.0),
    Sketcher.Constraint("DistanceX", -1, 1, 0, 2, 11.0),
    Sketcher.Constraint("DistanceY", 0, 2, -1, 1, 6.0),
    Sketcher.Constraint("DistanceX", -1, 1, 4, 2, 12.0),
    Sketcher.Constraint("DistanceY", 4, 2, -1, 1, 7.0),
])
pocket12 = body.newObject("PartDesign::Pocket", "Pocket011")
pocket12.Profile = sketch24
pocket12.Length = 1.5

# Sketch on YZ plane
sketch25 = body.newObject("Sketcher::SketchObject", "Sketch024")
sketch25.AttachmentSupport = (doc.getObject("YZ_Plane"), [""])
sketch25.MapMode = "FlatFace"
sketch25.AttachmentOffset = App.Placement(V(0, 0, -0.2), App.Rotation())
sketch25.addGeometry([
    Part.LineSegment(V(40, -2.5, 0), V(40, -27.5, 0)),  # 0
    Part.ArcOfCircle(Part.Circle(V(37.5, -27.5, 0), V(0, 0, 1), 2.5), math.radians(-90), math.radians(0)),  # 1
    Part.LineSegment(V(37.5, -30, 0), V(2.5, -30, 0)),  # 2
    Part.ArcOfCircle(Part.Circle(V(2.5, -27.5, 0), V(0, 0, 1), 2.5), math.radians(-180), math.radians(-90)),  # 3
    Part.LineSegment(V(0, -27.5, 0), V(0, -2.5, 0)),  # 4
    Part.ArcOfCircle(Part.Circle(V(2.5, -2.5, 0), V(0, 0, 1), 2.5), math.radians(90), math.radians(180)),  # 5
    Part.LineSegment(V(2.5, 0, 0), V(37.5, 0, 0)),  # 6
    Part.ArcOfCircle(Part.Circle(V(37.5, -2.5, 0), V(0, 0, 1), 2.5), math.radians(0), math.radians(90)),  # 7
    Part.LineSegment(V(39.5, -27, 0), V(39.5, -3, 0)),  # 8
    Part.ArcOfCircle(Part.Circle(V(37, -3, 0), V(0, 0, 1), 2.5), math.radians(0), math.radians(90)),  # 9
    Part.LineSegment(V(37, -0.5, 0), V(3.1, -0.5, 0)),  # 10
    Part.ArcOfCircle(Part.Circle(V(3.1, -3, 0), V(0, 0, 1), 2.5), math.radians(90), math.radians(180)),  # 11
    Part.LineSegment(V(0.6, -3, 0), V(0.6, -27, 0)),  # 12
    Part.ArcOfCircle(Part.Circle(V(3.1, -27, 0), V(0, 0, 1), 2.5), math.radians(-180), math.radians(-90)),  # 13
    Part.LineSegment(V(3.1, -29.5, 0), V(37, -29.5, 0)),  # 14
    Part.ArcOfCircle(Part.Circle(V(37, -27, 0), V(0, 0, 1), 2.5), math.radians(-90), math.radians(0)),  # 15
], False)
sketch25.addConstraint([
    Sketcher.Constraint("Tangent", 0, 2, 1, 2),
    Sketcher.Constraint("Tangent", 1, 1, 2, 1),
    Sketcher.Constraint("Tangent", 2, 2, 3, 2),
    Sketcher.Constraint("Tangent", 3, 1, 4, 1),
    Sketcher.Constraint("Tangent", 4, 2, 5, 2),
    Sketcher.Constraint("Tangent", 5, 1, 6, 1),
    Sketcher.Constraint("Tangent", 6, 2, 7, 2),
    Sketcher.Constraint("Tangent", 7, 1, 0, 1),
    Sketcher.Constraint("Tangent", 8, 2, 9, 1),
    Sketcher.Constraint("Tangent", 9, 2, 10, 1),
    Sketcher.Constraint("Tangent", 10, 2, 11, 1),
    Sketcher.Constraint("Tangent", 11, 2, 12, 1),
    Sketcher.Constraint("Tangent", 12, 2, 13, 1),
    Sketcher.Constraint("Tangent", 13, 2, 14, 1),
    Sketcher.Constraint("Tangent", 14, 2, 15, 1),
    Sketcher.Constraint("Tangent", 15, 2, 8, 1),
    Sketcher.Constraint("Vertical", 0),
    Sketcher.Constraint("Horizontal", 2),
    Sketcher.Constraint("Vertical", 4),
    Sketcher.Constraint("Horizontal", 6),
    Sketcher.Constraint("Vertical", 8),
    Sketcher.Constraint("Horizontal", 10),
    Sketcher.Constraint("Vertical", 12),
    Sketcher.Constraint("Horizontal", 14),
    Sketcher.Constraint("Equal", 1, 3),
    Sketcher.Constraint("Equal", 3, 5),
    Sketcher.Constraint("Equal", 5, 7),
    Sketcher.Constraint("Equal", 7, 9),
    Sketcher.Constraint("Equal", 9, 11),
    Sketcher.Constraint("Equal", 11, 13),
    Sketcher.Constraint("Equal", 13, 15),
    Sketcher.Constraint("PointOnObject", 3, 1, -2),
    Sketcher.Constraint("PointOnObject", 5, 1, -1),
    Sketcher.Constraint("Radius", 1, 2.54),
    Sketcher.Constraint("DistanceX", -1, 1, 0, 2, 40.0),
    Sketcher.Constraint("DistanceY", 1, 1, -1, 1, 30.0),
    Sketcher.Constraint("DistanceX", 10, 2, 10, 1, 33.82),
    Sketcher.Constraint("DistanceY", 8, 1, 8, 2, 23.92),
    Sketcher.Constraint("DistanceX", -1, 1, 8, 2, 39.5),
    Sketcher.Constraint("DistanceY", 9, 2, -1, 1, 0.5),
])
pad13 = body.newObject("PartDesign::Pad", "Pad012")
pad13.Profile = sketch25
pad13.Length = 0.2

# Sketch on YZ plane
sketch26 = body.newObject("Sketcher::SketchObject", "Sketch025")
sketch26.AttachmentSupport = (doc.getObject("YZ_Plane"), [""])
sketch26.MapMode = "FlatFace"
sketch26.AttachmentOffset = App.Placement(V(0, 0, 2), App.Rotation())
sketch26.addGeometry([
    Part.Circle(V(35, -5.2, 0), V(0, 0, 1), 2),
    Part.Circle(V(35, -24.8, 0), V(0, 0, 1), 2),
    Part.Circle(V(5, -24.8, 0), V(0, 0, 1), 2),
    Part.Circle(V(5, -5.5, 0), V(0, 0, 1), 2),
], False)
sketch26.addConstraint([
    Sketcher.Constraint("Equal", 0, 1),
    Sketcher.Constraint("Equal", 1, 2),
    Sketcher.Constraint("Equal", 2, 3),
    Sketcher.Constraint("Horizontal", 1, 3, 2, 3),
    Sketcher.Constraint("Vertical", 0, 3, 1, 3),
    Sketcher.Constraint("Vertical", 2, 3, 3, 3),
    Sketcher.Constraint("Diameter", 0, 4.0),
    Sketcher.Constraint("DistanceX", -1, 1, 0, 3, 35.0),
    Sketcher.Constraint("DistanceX", -1, 1, 2, 3, 5.0),
    Sketcher.Constraint("DistanceY", 0, 3, -1, 1, 5.2),
    Sketcher.Constraint("DistanceY", 1, 3, -1, 1, 24.8),
    Sketcher.Constraint("DistanceY", 3, 3, -1, 1, 5.5),
])
pocket13 = body.newObject("PartDesign::Pocket", "Pocket012")
pocket13.Profile = sketch26
pocket13.Length = 15.652
pocket13.Midplane = True

doc.recompute()
